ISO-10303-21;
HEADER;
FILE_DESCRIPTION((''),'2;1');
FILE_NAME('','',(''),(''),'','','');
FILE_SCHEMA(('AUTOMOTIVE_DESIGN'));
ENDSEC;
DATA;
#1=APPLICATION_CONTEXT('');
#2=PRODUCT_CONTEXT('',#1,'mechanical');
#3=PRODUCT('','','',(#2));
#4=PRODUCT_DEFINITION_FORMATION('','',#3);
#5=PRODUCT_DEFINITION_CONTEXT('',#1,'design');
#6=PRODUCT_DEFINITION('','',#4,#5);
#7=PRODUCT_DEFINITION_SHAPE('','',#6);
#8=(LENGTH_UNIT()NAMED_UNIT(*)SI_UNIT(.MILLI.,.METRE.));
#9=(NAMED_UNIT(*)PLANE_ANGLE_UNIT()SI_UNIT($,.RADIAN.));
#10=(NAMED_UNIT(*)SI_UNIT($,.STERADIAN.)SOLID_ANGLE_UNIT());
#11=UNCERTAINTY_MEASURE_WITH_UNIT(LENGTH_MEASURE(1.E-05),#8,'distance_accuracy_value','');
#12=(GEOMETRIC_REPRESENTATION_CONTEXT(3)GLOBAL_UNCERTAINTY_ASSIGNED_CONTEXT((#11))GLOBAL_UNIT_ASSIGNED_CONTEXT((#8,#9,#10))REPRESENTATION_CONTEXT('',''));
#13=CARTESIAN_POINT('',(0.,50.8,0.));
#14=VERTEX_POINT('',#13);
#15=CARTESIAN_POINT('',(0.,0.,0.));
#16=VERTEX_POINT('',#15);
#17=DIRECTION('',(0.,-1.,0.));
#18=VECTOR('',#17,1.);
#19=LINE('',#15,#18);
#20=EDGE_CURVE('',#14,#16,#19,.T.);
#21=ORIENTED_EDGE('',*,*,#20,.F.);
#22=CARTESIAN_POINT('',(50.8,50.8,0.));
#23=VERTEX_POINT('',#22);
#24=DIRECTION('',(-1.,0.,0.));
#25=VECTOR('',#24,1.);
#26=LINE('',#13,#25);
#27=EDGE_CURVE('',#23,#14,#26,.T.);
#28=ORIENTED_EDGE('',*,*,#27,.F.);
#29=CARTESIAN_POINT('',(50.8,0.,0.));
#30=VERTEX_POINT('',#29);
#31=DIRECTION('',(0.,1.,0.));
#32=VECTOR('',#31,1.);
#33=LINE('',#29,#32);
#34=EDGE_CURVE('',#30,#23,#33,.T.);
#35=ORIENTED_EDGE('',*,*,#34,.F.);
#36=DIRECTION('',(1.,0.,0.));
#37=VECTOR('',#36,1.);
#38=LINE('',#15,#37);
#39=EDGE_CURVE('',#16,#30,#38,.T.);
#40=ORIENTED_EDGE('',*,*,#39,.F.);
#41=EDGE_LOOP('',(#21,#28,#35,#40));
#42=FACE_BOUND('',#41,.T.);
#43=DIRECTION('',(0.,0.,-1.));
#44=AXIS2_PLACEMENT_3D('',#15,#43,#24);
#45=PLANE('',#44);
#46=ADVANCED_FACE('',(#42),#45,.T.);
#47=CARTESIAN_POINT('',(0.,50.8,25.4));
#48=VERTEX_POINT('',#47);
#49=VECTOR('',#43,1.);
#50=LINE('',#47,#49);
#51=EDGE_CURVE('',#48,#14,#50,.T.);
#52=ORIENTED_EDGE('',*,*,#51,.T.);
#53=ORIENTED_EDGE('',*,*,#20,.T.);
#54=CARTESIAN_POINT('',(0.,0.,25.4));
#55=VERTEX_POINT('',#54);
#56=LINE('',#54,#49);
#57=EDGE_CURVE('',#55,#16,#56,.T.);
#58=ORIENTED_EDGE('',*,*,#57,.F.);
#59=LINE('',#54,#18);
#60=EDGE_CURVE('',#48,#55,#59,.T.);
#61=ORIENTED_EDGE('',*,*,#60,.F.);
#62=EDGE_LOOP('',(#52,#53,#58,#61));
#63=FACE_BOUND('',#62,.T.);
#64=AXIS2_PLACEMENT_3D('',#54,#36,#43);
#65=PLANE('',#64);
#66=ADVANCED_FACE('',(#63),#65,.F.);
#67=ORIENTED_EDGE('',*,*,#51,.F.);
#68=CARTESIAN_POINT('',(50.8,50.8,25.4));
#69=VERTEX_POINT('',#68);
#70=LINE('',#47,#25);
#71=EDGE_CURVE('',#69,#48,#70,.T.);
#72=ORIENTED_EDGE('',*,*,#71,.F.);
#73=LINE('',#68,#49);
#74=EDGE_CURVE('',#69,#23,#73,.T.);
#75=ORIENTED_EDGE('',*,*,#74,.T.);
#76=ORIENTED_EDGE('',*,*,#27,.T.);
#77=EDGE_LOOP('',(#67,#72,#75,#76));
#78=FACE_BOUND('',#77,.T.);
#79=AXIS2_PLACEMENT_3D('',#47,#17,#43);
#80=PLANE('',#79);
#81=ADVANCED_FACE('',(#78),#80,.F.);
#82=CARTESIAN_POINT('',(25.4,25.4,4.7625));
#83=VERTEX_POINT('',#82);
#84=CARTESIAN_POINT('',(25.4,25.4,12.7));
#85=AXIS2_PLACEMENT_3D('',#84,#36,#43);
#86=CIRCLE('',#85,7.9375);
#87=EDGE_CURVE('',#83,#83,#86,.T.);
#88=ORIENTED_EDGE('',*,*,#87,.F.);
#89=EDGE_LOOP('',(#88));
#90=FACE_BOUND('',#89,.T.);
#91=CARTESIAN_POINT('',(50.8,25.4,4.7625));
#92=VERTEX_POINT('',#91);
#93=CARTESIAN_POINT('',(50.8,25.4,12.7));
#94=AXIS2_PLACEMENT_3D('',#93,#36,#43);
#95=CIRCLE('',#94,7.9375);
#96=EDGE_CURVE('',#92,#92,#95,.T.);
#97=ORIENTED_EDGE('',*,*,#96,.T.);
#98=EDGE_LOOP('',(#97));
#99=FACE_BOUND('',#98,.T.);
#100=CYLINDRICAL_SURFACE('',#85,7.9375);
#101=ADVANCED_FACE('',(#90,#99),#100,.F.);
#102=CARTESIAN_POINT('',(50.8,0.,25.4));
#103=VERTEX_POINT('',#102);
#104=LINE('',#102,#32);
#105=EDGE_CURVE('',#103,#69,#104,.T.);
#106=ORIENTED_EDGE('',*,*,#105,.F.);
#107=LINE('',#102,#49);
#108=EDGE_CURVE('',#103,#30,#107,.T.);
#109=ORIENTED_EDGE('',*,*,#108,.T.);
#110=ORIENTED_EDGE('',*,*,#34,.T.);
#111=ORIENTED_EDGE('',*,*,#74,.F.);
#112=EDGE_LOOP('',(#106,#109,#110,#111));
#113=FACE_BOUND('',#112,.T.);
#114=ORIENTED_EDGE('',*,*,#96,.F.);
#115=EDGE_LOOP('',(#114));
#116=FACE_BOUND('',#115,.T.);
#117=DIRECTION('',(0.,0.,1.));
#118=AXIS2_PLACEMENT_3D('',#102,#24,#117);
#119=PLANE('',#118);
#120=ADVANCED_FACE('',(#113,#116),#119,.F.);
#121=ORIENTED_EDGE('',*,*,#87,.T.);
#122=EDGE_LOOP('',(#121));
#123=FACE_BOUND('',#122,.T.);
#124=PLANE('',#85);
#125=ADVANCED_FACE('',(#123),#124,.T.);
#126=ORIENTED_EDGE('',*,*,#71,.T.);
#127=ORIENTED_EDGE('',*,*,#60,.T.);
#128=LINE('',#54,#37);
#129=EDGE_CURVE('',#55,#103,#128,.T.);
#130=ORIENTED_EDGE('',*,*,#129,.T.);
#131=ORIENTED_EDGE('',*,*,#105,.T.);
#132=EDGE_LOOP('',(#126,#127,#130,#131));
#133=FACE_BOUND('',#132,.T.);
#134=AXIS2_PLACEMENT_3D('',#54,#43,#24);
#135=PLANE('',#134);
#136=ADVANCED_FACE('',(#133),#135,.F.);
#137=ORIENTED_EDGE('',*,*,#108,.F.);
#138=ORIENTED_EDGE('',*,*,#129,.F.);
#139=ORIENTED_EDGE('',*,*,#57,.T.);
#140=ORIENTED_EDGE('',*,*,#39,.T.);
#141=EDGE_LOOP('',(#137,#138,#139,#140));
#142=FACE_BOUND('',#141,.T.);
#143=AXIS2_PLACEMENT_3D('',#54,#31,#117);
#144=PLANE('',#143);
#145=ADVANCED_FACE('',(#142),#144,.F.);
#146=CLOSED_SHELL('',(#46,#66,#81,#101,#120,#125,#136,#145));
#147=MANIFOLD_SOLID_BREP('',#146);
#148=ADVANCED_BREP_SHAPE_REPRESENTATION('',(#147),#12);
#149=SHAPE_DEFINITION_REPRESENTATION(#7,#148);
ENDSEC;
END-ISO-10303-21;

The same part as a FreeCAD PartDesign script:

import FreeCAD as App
import Part
import Sketcher
from FreeCAD import Vector
Q = App.Units.Quantity


def add_polygon(sketch, points):
    """Adds a closed chain of lines whose ends are joined by coincident constraints."""
    first, n = sketch.GeometryCount, len(points)
    for a, b in zip(points, points[1:] + points[:1]):
        sketch.addGeometry(Part.LineSegment(App.Vector(*a, 0), App.Vector(*b, 0)), False)
    for i in range(n):
        sketch.addConstraint(Sketcher.Constraint("Coincident", first + i, 2, first + (i + 1) % n, 1))

doc = App.newDocument("Part")
body = doc.addObject("PartDesign::Body", "Body")

sketch1 = doc.addObject("Sketcher::SketchObject", "Sketch")
body.addObject(sketch1)
sketch1.AttachmentSupport = (doc.XY_Plane, [""])
sketch1.MapMode = "FlatFace"
add_polygon(sketch1, [(0, 51), (0, 0), (51, 0), (51, 51)])
sketch1.addConstraint([
    Sketcher.Constraint("Vertical", 0),
    Sketcher.Constraint("Horizontal", 1),
    Sketcher.Constraint("Vertical", 2),
    Sketcher.Constraint("Horizontal", 3),
    Sketcher.Constraint("Coincident", 0, 2, -1, 1),
    Sketcher.Constraint("Equal", 3, 0),
    Sketcher.Constraint("DistanceX", 1, 1, 1, 2, Q("2 in")),
])
pad1 = doc.addObject("PartDesign::Pad", "Pad")
body.addObject(pad1)
pad1.Profile = sketch1
pad1.Length = Q("1 in")

sketch2 = doc.addObject("Sketcher::SketchObject", "Sketch001")
body.addObject(sketch2)
sketch2.AttachmentSupport = (doc.YZ_Plane, [""])
sketch2.MapMode = "FlatFace"
sketch2.AttachmentOffset = App.Placement(Vector(0, 0, 2 * 25.4), App.Rotation())
sketch2.addGeometry(Part.Circle(Vector(25, 13, 0), Vector(0, 0, 1), 8), False)
sketch2.addConstraint([
    Sketcher.Constraint("Diameter", 0, Q("0.625 in")),
    Sketcher.Constraint("DistanceX", -1, 1, 0, 3, Q("1 in")),
    Sketcher.Constraint("DistanceY", -1, 1, 0, 3, Q("0.5 in")),
])
pocket1 = doc.addObject("PartDesign::Pocket", "Pocket")
body.addObject(pocket1)
pocket1.Profile = sketch2
pocket1.Length = Q("1 in")

doc.recompute()
